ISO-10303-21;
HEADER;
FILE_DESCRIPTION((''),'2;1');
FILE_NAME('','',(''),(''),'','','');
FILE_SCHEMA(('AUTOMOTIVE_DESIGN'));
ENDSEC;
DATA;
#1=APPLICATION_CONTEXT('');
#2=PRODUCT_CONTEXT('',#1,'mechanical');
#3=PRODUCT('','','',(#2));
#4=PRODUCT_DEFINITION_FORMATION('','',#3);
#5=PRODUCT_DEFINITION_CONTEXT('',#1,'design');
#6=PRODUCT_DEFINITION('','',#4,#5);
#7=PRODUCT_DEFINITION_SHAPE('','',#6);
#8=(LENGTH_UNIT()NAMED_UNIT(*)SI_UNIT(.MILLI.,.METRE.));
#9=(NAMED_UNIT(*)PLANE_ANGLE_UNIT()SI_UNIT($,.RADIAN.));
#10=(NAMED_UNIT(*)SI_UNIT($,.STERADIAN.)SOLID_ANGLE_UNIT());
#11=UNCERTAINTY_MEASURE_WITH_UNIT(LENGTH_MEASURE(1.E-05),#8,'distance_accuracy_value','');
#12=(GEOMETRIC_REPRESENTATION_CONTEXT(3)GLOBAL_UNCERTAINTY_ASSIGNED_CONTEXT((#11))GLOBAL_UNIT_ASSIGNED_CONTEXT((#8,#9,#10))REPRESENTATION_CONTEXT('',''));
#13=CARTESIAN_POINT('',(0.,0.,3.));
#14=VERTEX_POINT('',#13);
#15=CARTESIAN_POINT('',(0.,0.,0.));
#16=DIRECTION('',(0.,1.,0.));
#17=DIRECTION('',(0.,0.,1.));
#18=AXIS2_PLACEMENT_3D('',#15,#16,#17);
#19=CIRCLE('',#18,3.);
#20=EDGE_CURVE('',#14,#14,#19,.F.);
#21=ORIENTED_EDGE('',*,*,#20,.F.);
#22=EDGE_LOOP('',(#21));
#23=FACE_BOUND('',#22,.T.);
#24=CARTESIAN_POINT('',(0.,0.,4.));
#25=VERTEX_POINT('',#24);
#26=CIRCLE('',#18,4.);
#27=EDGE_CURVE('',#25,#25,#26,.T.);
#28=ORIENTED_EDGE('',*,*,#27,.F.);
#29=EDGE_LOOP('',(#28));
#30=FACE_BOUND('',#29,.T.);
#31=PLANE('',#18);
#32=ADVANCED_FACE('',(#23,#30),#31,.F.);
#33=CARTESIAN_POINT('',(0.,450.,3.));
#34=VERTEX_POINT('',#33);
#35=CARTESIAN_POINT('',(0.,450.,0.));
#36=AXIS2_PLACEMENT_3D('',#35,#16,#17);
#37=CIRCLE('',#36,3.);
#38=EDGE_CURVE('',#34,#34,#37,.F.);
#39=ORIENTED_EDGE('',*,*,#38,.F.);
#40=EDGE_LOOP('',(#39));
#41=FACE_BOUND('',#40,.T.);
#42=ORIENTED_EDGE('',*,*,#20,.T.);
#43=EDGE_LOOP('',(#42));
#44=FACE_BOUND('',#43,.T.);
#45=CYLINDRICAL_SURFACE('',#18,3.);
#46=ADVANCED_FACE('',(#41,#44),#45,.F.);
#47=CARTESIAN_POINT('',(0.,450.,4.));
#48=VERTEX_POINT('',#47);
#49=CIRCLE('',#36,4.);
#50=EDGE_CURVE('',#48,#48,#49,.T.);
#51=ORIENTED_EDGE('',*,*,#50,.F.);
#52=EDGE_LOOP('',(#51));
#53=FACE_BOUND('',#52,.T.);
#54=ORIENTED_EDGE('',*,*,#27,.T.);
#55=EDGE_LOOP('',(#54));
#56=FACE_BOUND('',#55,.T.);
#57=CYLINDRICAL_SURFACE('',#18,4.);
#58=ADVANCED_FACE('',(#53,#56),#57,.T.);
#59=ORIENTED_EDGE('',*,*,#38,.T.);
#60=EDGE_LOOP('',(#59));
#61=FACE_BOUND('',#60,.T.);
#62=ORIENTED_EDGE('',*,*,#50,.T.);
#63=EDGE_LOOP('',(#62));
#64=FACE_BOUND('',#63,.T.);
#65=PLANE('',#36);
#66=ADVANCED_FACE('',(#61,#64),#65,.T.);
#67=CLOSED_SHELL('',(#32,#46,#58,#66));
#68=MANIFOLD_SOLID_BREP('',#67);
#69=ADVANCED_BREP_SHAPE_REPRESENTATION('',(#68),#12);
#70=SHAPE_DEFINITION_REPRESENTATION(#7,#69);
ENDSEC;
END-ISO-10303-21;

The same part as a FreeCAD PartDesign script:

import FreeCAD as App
import Part
import Sketcher

V = App.Vector
Q = App.Units.Quantity

doc = App.newDocument("Part")
body = doc.addObject("PartDesign::Body", "Body")

sketch1 = body.newObject("Sketcher::SketchObject", "Sketch")
sketch1.AttachmentSupport = (doc.getObject("XZ_Plane"), [""])
sketch1.MapMode = "FlatFace"
sketch1.addGeometry([
    Part.Circle(V(0, 0, 0), V(0, 0, 1), 4),
    Part.Circle(V(0, 0, 0), V(0, 0, 1), 3),
], False)
sketch1.addConstraint([
    Sketcher.Constraint("Coincident", 0, 3, -1, 1),
    Sketcher.Constraint("Coincident", 1, 3, -1, 1),
    Sketcher.Constraint("Diameter", 0, Q("8 mm")),
    Sketcher.Constraint("Diameter", 1, Q("6 mm")),
])

sketch2 = body.newObject("Sketcher::SketchObject", "Sketch001")
sketch2.AttachmentSupport = (doc.getObject("XY_Plane"), [""])
sketch2.MapMode = "FlatFace"
sketch2.addGeometry(Part.LineSegment(V(0, 0, 0), V(0, 450, 0)), False)
sketch2.addConstraint([
    Sketcher.Constraint("Vertical", 0),
    Sketcher.Constraint("Coincident", 0, 1, -1, 1),
    Sketcher.Constraint("DistanceY", 0, 1, 0, 2, Q("450 mm")),
])
doc.recompute()

additivepipe = body.newObject("PartDesign::AdditivePipe", "AdditivePipe")
additivepipe.Profile = sketch1
additivepipe.Spine = (sketch2, ["Edge1"])

doc.recompute()
